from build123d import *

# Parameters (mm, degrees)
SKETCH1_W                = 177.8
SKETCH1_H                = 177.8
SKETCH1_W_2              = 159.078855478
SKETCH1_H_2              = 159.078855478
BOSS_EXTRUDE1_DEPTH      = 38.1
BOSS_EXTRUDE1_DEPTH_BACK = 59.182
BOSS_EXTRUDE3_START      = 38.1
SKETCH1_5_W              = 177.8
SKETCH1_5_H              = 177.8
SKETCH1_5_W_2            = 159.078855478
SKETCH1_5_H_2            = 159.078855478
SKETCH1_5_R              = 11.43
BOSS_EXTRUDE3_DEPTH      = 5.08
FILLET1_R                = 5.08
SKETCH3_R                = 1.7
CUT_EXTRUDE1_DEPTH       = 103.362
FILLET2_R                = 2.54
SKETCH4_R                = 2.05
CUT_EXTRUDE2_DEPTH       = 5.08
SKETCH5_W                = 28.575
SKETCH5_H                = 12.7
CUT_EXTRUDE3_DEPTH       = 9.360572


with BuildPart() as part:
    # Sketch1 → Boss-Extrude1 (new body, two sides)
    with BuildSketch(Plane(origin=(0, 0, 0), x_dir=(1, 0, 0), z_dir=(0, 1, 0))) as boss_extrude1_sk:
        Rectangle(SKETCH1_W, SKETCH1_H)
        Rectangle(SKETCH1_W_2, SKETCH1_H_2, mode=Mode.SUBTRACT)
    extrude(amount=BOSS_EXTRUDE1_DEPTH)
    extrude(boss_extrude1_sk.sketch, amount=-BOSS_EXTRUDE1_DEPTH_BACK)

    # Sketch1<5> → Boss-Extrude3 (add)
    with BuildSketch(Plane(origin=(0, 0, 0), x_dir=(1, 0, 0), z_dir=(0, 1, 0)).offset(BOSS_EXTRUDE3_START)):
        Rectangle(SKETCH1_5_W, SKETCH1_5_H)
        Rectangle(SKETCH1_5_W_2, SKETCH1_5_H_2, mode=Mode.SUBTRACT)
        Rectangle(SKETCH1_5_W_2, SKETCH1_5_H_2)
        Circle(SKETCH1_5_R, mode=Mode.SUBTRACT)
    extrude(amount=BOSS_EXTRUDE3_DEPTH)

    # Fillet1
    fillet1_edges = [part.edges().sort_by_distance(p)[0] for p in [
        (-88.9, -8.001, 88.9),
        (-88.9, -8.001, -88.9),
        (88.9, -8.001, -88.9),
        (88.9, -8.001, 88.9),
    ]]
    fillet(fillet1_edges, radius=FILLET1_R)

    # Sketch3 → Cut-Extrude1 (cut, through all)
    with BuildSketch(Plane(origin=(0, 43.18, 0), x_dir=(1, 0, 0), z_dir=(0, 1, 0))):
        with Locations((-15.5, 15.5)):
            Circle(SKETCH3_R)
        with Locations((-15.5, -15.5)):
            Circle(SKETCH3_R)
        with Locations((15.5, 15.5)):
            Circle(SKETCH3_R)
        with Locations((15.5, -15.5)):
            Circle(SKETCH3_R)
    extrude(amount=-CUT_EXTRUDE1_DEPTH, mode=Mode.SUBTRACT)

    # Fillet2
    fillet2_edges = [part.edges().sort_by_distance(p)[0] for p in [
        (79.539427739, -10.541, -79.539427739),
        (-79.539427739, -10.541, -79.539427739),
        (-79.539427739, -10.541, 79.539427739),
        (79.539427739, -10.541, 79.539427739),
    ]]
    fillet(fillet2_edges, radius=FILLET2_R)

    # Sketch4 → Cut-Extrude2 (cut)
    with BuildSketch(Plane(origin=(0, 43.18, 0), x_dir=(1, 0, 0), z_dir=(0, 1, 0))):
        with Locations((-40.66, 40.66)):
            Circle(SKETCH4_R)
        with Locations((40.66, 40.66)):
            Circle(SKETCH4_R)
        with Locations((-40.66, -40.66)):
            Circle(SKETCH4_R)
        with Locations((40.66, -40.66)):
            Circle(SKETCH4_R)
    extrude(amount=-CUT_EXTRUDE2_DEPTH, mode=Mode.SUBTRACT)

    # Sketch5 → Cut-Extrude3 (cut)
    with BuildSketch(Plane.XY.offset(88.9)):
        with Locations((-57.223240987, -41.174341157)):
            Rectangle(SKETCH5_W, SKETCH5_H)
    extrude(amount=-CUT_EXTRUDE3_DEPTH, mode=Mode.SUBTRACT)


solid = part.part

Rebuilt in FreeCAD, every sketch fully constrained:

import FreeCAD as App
import Part
import Sketcher
from FreeCAD import Vector
Q = App.Units.Quantity


def edges_at(feature, points):
    """Names of the edges that pass closest to the given points."""
    edges = feature.Shape.Edges
    near = lambda p: min(range(len(edges)), key=lambda i: edges[i].distToShape(Part.Vertex(*p))[0])
    return sorted({f"Edge{near(p) + 1}" for p in points})


def add_polygon(sketch, points):
    """Adds a closed chain of lines whose ends are joined by coincident constraints."""
    first, n = sketch.GeometryCount, len(points)
    for a, b in zip(points, points[1:] + points[:1]):
        sketch.addGeometry(Part.LineSegment(App.Vector(*a, 0), App.Vector(*b, 0)), False)
    for i in range(n):
        sketch.addConstraint(Sketcher.Constraint("Coincident", first + i, 2, first + (i + 1) % n, 1))

doc = App.newDocument("Part")
body = doc.addObject("PartDesign::Body", "Body")

sketch1 = body.newObject("Sketcher::SketchObject", "Sketch")
sketch1.AttachmentSupport = (doc.getObject("XZ_Plane"), [""])
sketch1.MapMode = "FlatFace"
add_polygon(sketch1, [(-89, -89), (-89, 89), (89, 89), (89, -89)])
add_polygon(sketch1, [(80, 80), (-80, 80), (-80, -80), (80, -80)])
sketch1.addConstraint([
    Sketcher.Constraint("Vertical", 0),
    Sketcher.Constraint("Horizontal", 1),
    Sketcher.Constraint("Vertical", 2),
    Sketcher.Constraint("Horizontal", 3),
    Sketcher.Constraint("Horizontal", 4),
    Sketcher.Constraint("Vertical", 5),
    Sketcher.Constraint("Horizontal", 6),
    Sketcher.Constraint("Vertical", 7),
    Sketcher.Constraint("Symmetric", 0, 2, 2, 2, -1, 1),
    Sketcher.Constraint("Symmetric", 4, 2, 6, 2, -1, 1),
    Sketcher.Constraint("Equal", 3, 0),
    Sketcher.Constraint("Equal", 6, 5),
    Sketcher.Constraint("DistanceX", 1, 1, 1, 2, Q("7 in")),
    Sketcher.Constraint("DistanceX", 4, 2, 4, 1, Q("159.078855 mm")),
])
pad1 = body.newObject("PartDesign::Pad", "Pad")
pad1.Profile = sketch1
pad1.Type = "TwoLengths"
pad1.Length = Q("1.5 in")
pad1.Length2 = Q("2.33 in")
pad1.Reversed = True

sketch2 = body.newObject("Sketcher::SketchObject", "Sketch001")
sketch2.AttachmentSupport = (doc.getObject("XZ_Plane"), [""])
sketch2.MapMode = "FlatFace"
sketch2.AttachmentOffset = App.Placement(Vector(0, 0, -1.5 * 25.4), App.Rotation())
add_polygon(sketch2, [(-89, -89), (-89, 89), (89, 89), (89, -89)])
sketch2.addGeometry(Part.Circle(Vector(0, 0, 0), Vector(0, 0, 1), 11), False)
sketch2.addConstraint([
    Sketcher.Constraint("Vertical", 0),
    Sketcher.Constraint("Horizontal", 1),
    Sketcher.Constraint("Vertical", 2),
    Sketcher.Constraint("Horizontal", 3),
    Sketcher.Constraint("Coincident", 4, 3, -1, 1),
    Sketcher.Constraint("Symmetric", 0, 2, 2, 2, -1, 1),
    Sketcher.Constraint("Equal", 3, 0),
    Sketcher.Constraint("Diameter", 4, Q("0.9 in")),
    Sketcher.Constraint("DistanceX", 1, 1, 1, 2, Q("7 in")),
])
pad2 = body.newObject("PartDesign::Pad", "Pad001")
pad2.Profile = sketch2
pad2.Length = Q("0.2 in")
pad2.Reversed = True
doc.recompute()

fillet = body.newObject("PartDesign::Fillet", "Fillet")
fillet.Base = (pad2, edges_at(pad2, [
    (-88.9, -8.001, 88.9),
    (-88.9, -8.001, -88.9),
    (88.9, -8.001, -88.9),
    (88.9, -8.001, 88.9),
]))
fillet.Radius = Q("0.2 in")

sketch3 = body.newObject("Sketcher::SketchObject", "Sketch002")
sketch3.AttachmentSupport = (doc.getObject("XZ_Plane"), [""])
sketch3.MapMode = "FlatFace"
sketch3.AttachmentOffset = App.Placement(Vector(0, 0, -1.7 * 25.4), App.Rotation())
sketch3.addGeometry([
    Part.Circle(Vector(-15.5, -15.5, 0), Vector(0, 0, 1), 1.7),
    Part.Circle(Vector(-15.5, 15.5, 0), Vector(0, 0, 1), 1.7),
    Part.Circle(Vector(15.5, -15.5, 0), Vector(0, 0, 1), 1.7),
    Part.Circle(Vector(15.5, 15.5, 0), Vector(0, 0, 1), 1.7),
], False)
sketch3.addConstraint([
    Sketcher.Constraint("Equal", 0, 1),
    Sketcher.Constraint("Equal", 1, 2),
    Sketcher.Constraint("Equal", 2, 3),
    Sketcher.Constraint("Symmetric", 1, 3, 2, 3, -1, 1),
    Sketcher.Constraint("Symmetric", 0, 3, 3, 3, -1, 1),
    Sketcher.Constraint("Symmetric", 0, 3, 2, 3, -2),
    Sketcher.Constraint("Diameter", 0, Q("3.4 mm")),
    Sketcher.Constraint("DistanceX", 0, 3, -1, 1, Q("15.5 mm")),
    Sketcher.Constraint("DistanceY", 0, 3, -1, 1, Q("15.5 mm")),
])
pocket1 = body.newObject("PartDesign::Pocket", "Pocket")
pocket1.Profile = sketch3
pocket1.Type = "ThroughAll"
pocket1.Reversed = True
doc.recompute()

fillet2 = body.newObject("PartDesign::Fillet", "Fillet001")
fillet2.Base = (pocket1, edges_at(pocket1, [
    (79.539, -10.541, -79.539),
    (-79.539, -10.541, -79.539),
    (-79.539, -10.541, 79.539),
    (79.539, -10.541, 79.539),
]))
fillet2.Radius = Q("0.1 in")

sketch4 = body.newObject("Sketcher::SketchObject", "Sketch003")
sketch4.AttachmentSupport = (doc.getObject("XZ_Plane"), [""])
sketch4.MapMode = "FlatFace"
sketch4.AttachmentOffset = App.Placement(Vector(0, 0, -1.7 * 25.4), App.Rotation())
sketch4.addGeometry([
    Part.Circle(Vector(-40.7, -40.7, 0), Vector(0, 0, 1), 2),
    Part.Circle(Vector(40.7, -40.7, 0), Vector(0, 0, 1), 2),
    Part.Circle(Vector(-40.7, 40.7, 0), Vector(0, 0, 1), 2),
    Part.Circle(Vector(40.7, 40.7, 0), Vector(0, 0, 1), 2),
], False)
sketch4.addConstraint([
    Sketcher.Constraint("Equal", 0, 1),
    Sketcher.Constraint("Equal", 1, 2),
    Sketcher.Constraint("Equal", 2, 3),
    Sketcher.Constraint("Symmetric", 1, 3, 2, 3, -1, 1),
    Sketcher.Constraint("Symmetric", 0, 3, 3, 3, -1, 1),
    Sketcher.Constraint("Symmetric", 0, 3, 1, 3, -2),
    Sketcher.Constraint("Diameter", 0, Q("4.1 mm")),
    Sketcher.Constraint("DistanceX", 0, 3, -1, 1, Q("40.66 mm")),
    Sketcher.Constraint("DistanceY", 0, 3, -1, 1, Q("40.66 mm")),
])
pocket2 = body.newObject("PartDesign::Pocket", "Pocket001")
pocket2.Profile = sketch4
pocket2.Length = Q("0.2 in")
pocket2.Reversed = True

sketch5 = body.newObject("Sketcher::SketchObject", "Sketch004")
sketch5.AttachmentSupport = (doc.getObject("XY_Plane"), [""])
sketch5.MapMode = "FlatFace"
sketch5.AttachmentOffset = App.Placement(Vector(0, 0, 3.5 * 25.4), App.Rotation())
add_polygon(sketch5, [(-72, -35), (-72, -48), (-43, -48), (-43, -35)])
sketch5.addConstraint([
    Sketcher.Constraint("Vertical", 0),
    Sketcher.Constraint("Horizontal", 1),
    Sketcher.Constraint("Vertical", 2),
    Sketcher.Constraint("Horizontal", 3),
    Sketcher.Constraint("DistanceY", 0, 2, 0, 1, Q("0.5 in")),
    Sketcher.Constraint("DistanceX", 1, 1, 1, 2, Q("1.125 in")),
    Sketcher.Constraint("DistanceX", 0, 2, -1, 1, Q("71.510741 mm")),
    Sketcher.Constraint("DistanceY", 0, 2, -1, 1, Q("47.524341 mm")),
])
pocket3 = body.newObject("PartDesign::Pocket", "Pocket002")
pocket3.Profile = sketch5
pocket3.Length = 9.360572

doc.recompute()
